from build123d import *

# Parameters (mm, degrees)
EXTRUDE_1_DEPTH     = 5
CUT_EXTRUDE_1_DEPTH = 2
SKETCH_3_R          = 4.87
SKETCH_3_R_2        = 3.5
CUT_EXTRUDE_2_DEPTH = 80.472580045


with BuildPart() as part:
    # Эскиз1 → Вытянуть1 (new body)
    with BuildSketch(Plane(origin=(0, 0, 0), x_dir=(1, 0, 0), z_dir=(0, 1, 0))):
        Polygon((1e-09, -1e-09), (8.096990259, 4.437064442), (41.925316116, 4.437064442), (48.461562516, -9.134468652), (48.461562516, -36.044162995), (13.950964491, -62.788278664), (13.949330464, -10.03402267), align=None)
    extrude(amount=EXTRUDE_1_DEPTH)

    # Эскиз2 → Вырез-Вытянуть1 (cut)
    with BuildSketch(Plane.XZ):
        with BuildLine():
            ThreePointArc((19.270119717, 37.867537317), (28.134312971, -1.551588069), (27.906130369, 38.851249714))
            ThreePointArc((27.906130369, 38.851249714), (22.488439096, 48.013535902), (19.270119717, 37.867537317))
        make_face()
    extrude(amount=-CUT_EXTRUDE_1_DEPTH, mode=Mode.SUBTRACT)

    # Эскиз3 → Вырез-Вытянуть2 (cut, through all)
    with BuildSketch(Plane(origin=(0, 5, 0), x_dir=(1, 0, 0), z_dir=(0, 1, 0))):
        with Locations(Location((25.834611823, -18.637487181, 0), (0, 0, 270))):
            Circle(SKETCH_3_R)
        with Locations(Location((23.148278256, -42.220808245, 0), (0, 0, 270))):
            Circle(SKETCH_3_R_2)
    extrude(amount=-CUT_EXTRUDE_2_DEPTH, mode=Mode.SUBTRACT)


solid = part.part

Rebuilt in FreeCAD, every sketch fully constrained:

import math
import FreeCAD as App
import Part
import Sketcher
from FreeCAD import Vector
Q = App.Units.Quantity


def add_polygon(sketch, points):
    """Adds a closed chain of lines whose ends are joined by coincident constraints."""
    first, n = sketch.GeometryCount, len(points)
    for a, b in zip(points, points[1:] + points[:1]):
        sketch.addGeometry(Part.LineSegment(App.Vector(*a, 0), App.Vector(*b, 0)), False)
    for i in range(n):
        sketch.addConstraint(Sketcher.Constraint("Coincident", first + i, 2, first + (i + 1) % n, 1))

doc = App.newDocument("Part")
body = doc.addObject("PartDesign::Body", "Body")

# Sketch on XZ plane
sketch1 = body.newObject("Sketcher::SketchObject", "Sketch")
sketch1.AttachmentSupport = (doc.getObject("XZ_Plane"), [""])
sketch1.MapMode = "FlatFace"
add_polygon(sketch1, [(8, -4), (0, 0), (14, 10), (14, 63), (48, 36), (48, 9), (42, -4)])  # lines 0-6
sketch1.addConstraint(Sketcher.Constraint("Vertical", 4))
sketch1.addConstraint(Sketcher.Constraint("Horizontal", 6))
sketch1.addConstraint(Sketcher.Constraint("Coincident", 0, 2, -1, 1))
sketch1.addConstraint(Sketcher.Constraint("Distance", 5, Q("15.0635 mm")))
sketch1.addConstraint(Sketcher.Constraint("DistanceX", 2, 2, 3, 2, Q("34.510598 mm")))
sketch1.addConstraint(Sketcher.Constraint("Distance", 1, Q("17.183289 mm")))
sketch1.addConstraint(Sketcher.Constraint("DistanceX", 6, 2, 6, 1, Q("33.828326 mm")))
sketch1.addConstraint(Sketcher.Constraint("DistanceY", 4, 2, 4, 1, Q("26.909694 mm")))
sketch1.addConstraint(Sketcher.Constraint("DistanceX", -1, 1, 1, 2, Q("13.94933 mm")))
sketch1.addConstraint(Sketcher.Constraint("DistanceY", -1, 1, 2, 2, Q("62.788279 mm")))
sketch1.addConstraint(Sketcher.Constraint("DistanceY", -1, 1, 4, 2, Q("9.134469 mm")))
sketch1.addConstraint(Sketcher.Constraint("DistanceX", -1, 1, 6, 2, Q("8.09699 mm")))
sketch1.addConstraint(Sketcher.Constraint("DistanceX", 2, 2, 5, 2, Q("27.974352 mm")))
pad1 = body.newObject("PartDesign::Pad", "Pad")
pad1.Profile = sketch1
pad1.Length = 5
pad1.Reversed = True

# Sketch on XZ plane
sketch2 = body.newObject("Sketcher::SketchObject", "Sketch001")
sketch2.AttachmentSupport = (doc.getObject("XZ_Plane"), [""])
sketch2.MapMode = "FlatFace"
sketch2.addGeometry(Part.ArcOfCircle(Part.Circle(Vector(26, 19, 0), Vector(0, 0, 1), 20), math.radians(109), math.radians(444)), False)
sketch2.addGeometry(Part.ArcOfCircle(Part.Circle(Vector(23, 42, 0), Vector(0, 0, 1), 6), math.radians(-35), math.radians(228)), False)
sketch2.addConstraint(Sketcher.Constraint("Coincident", 0, 1, 1, 2))
sketch2.addConstraint(Sketcher.Constraint("Coincident", 1, 1, 0, 2))
sketch2.addConstraint(Sketcher.Constraint("Radius", 0, Q("20.319631 mm")))
sketch2.addConstraint(Sketcher.Constraint("Radius", 1, Q("5.830187 mm")))
sketch2.addConstraint(Sketcher.Constraint("DistanceX", -1, 1, 0, 3, Q("25.834612 mm")))
sketch2.addConstraint(Sketcher.Constraint("DistanceX", -1, 1, 1, 3, Q("23.148278 mm")))
sketch2.addConstraint(Sketcher.Constraint("DistanceY", -1, 1, 1, 3, Q("42.220808 mm")))
sketch2.addConstraint(Sketcher.Constraint("DistanceX", -1, 1, 0, 1, Q("19.27012 mm")))
pocket1 = body.newObject("PartDesign::Pocket", "Pocket")
pocket1.Profile = sketch2
pocket1.Length = 2

# Sketch on XZ plane
sketch3 = body.newObject("Sketcher::SketchObject", "Sketch002")
sketch3.AttachmentSupport = (doc.getObject("XZ_Plane"), [""])
sketch3.MapMode = "FlatFace"
sketch3.AttachmentOffset = App.Placement(Vector(0, 0, -5), App.Rotation())
sketch3.addGeometry(Part.Circle(Vector(25.8, 18.6, 0), Vector(0, 0, 1), 4.9), False)
sketch3.addGeometry(Part.Circle(Vector(23.1, 42.2, 0), Vector(0, 0, 1), 3.5), False)
sketch3.addConstraint(Sketcher.Constraint("Diameter", 1, Q("7 mm")))
sketch3.addConstraint(Sketcher.Constraint("Diameter", 0, Q("9.74 mm")))
sketch3.addConstraint(Sketcher.Constraint("DistanceX", -1, 1, 0, 3, Q("25.834612 mm")))
sketch3.addConstraint(Sketcher.Constraint("DistanceX", -1, 1, 1, 3, Q("23.148278 mm")))
sketch3.addConstraint(Sketcher.Constraint("DistanceY", -1, 1, 1, 3, Q("42.220808 mm")))
sketch3.addConstraint(Sketcher.Constraint("DistanceY", 0, 3, 1, 3, Q("23.583321 mm")))
pocket2 = body.newObject("PartDesign::Pocket", "Pocket001")
pocket2.Profile = sketch3
pocket2.Type = "ThroughAll"
pocket2.Reversed = True

doc.recompute()
